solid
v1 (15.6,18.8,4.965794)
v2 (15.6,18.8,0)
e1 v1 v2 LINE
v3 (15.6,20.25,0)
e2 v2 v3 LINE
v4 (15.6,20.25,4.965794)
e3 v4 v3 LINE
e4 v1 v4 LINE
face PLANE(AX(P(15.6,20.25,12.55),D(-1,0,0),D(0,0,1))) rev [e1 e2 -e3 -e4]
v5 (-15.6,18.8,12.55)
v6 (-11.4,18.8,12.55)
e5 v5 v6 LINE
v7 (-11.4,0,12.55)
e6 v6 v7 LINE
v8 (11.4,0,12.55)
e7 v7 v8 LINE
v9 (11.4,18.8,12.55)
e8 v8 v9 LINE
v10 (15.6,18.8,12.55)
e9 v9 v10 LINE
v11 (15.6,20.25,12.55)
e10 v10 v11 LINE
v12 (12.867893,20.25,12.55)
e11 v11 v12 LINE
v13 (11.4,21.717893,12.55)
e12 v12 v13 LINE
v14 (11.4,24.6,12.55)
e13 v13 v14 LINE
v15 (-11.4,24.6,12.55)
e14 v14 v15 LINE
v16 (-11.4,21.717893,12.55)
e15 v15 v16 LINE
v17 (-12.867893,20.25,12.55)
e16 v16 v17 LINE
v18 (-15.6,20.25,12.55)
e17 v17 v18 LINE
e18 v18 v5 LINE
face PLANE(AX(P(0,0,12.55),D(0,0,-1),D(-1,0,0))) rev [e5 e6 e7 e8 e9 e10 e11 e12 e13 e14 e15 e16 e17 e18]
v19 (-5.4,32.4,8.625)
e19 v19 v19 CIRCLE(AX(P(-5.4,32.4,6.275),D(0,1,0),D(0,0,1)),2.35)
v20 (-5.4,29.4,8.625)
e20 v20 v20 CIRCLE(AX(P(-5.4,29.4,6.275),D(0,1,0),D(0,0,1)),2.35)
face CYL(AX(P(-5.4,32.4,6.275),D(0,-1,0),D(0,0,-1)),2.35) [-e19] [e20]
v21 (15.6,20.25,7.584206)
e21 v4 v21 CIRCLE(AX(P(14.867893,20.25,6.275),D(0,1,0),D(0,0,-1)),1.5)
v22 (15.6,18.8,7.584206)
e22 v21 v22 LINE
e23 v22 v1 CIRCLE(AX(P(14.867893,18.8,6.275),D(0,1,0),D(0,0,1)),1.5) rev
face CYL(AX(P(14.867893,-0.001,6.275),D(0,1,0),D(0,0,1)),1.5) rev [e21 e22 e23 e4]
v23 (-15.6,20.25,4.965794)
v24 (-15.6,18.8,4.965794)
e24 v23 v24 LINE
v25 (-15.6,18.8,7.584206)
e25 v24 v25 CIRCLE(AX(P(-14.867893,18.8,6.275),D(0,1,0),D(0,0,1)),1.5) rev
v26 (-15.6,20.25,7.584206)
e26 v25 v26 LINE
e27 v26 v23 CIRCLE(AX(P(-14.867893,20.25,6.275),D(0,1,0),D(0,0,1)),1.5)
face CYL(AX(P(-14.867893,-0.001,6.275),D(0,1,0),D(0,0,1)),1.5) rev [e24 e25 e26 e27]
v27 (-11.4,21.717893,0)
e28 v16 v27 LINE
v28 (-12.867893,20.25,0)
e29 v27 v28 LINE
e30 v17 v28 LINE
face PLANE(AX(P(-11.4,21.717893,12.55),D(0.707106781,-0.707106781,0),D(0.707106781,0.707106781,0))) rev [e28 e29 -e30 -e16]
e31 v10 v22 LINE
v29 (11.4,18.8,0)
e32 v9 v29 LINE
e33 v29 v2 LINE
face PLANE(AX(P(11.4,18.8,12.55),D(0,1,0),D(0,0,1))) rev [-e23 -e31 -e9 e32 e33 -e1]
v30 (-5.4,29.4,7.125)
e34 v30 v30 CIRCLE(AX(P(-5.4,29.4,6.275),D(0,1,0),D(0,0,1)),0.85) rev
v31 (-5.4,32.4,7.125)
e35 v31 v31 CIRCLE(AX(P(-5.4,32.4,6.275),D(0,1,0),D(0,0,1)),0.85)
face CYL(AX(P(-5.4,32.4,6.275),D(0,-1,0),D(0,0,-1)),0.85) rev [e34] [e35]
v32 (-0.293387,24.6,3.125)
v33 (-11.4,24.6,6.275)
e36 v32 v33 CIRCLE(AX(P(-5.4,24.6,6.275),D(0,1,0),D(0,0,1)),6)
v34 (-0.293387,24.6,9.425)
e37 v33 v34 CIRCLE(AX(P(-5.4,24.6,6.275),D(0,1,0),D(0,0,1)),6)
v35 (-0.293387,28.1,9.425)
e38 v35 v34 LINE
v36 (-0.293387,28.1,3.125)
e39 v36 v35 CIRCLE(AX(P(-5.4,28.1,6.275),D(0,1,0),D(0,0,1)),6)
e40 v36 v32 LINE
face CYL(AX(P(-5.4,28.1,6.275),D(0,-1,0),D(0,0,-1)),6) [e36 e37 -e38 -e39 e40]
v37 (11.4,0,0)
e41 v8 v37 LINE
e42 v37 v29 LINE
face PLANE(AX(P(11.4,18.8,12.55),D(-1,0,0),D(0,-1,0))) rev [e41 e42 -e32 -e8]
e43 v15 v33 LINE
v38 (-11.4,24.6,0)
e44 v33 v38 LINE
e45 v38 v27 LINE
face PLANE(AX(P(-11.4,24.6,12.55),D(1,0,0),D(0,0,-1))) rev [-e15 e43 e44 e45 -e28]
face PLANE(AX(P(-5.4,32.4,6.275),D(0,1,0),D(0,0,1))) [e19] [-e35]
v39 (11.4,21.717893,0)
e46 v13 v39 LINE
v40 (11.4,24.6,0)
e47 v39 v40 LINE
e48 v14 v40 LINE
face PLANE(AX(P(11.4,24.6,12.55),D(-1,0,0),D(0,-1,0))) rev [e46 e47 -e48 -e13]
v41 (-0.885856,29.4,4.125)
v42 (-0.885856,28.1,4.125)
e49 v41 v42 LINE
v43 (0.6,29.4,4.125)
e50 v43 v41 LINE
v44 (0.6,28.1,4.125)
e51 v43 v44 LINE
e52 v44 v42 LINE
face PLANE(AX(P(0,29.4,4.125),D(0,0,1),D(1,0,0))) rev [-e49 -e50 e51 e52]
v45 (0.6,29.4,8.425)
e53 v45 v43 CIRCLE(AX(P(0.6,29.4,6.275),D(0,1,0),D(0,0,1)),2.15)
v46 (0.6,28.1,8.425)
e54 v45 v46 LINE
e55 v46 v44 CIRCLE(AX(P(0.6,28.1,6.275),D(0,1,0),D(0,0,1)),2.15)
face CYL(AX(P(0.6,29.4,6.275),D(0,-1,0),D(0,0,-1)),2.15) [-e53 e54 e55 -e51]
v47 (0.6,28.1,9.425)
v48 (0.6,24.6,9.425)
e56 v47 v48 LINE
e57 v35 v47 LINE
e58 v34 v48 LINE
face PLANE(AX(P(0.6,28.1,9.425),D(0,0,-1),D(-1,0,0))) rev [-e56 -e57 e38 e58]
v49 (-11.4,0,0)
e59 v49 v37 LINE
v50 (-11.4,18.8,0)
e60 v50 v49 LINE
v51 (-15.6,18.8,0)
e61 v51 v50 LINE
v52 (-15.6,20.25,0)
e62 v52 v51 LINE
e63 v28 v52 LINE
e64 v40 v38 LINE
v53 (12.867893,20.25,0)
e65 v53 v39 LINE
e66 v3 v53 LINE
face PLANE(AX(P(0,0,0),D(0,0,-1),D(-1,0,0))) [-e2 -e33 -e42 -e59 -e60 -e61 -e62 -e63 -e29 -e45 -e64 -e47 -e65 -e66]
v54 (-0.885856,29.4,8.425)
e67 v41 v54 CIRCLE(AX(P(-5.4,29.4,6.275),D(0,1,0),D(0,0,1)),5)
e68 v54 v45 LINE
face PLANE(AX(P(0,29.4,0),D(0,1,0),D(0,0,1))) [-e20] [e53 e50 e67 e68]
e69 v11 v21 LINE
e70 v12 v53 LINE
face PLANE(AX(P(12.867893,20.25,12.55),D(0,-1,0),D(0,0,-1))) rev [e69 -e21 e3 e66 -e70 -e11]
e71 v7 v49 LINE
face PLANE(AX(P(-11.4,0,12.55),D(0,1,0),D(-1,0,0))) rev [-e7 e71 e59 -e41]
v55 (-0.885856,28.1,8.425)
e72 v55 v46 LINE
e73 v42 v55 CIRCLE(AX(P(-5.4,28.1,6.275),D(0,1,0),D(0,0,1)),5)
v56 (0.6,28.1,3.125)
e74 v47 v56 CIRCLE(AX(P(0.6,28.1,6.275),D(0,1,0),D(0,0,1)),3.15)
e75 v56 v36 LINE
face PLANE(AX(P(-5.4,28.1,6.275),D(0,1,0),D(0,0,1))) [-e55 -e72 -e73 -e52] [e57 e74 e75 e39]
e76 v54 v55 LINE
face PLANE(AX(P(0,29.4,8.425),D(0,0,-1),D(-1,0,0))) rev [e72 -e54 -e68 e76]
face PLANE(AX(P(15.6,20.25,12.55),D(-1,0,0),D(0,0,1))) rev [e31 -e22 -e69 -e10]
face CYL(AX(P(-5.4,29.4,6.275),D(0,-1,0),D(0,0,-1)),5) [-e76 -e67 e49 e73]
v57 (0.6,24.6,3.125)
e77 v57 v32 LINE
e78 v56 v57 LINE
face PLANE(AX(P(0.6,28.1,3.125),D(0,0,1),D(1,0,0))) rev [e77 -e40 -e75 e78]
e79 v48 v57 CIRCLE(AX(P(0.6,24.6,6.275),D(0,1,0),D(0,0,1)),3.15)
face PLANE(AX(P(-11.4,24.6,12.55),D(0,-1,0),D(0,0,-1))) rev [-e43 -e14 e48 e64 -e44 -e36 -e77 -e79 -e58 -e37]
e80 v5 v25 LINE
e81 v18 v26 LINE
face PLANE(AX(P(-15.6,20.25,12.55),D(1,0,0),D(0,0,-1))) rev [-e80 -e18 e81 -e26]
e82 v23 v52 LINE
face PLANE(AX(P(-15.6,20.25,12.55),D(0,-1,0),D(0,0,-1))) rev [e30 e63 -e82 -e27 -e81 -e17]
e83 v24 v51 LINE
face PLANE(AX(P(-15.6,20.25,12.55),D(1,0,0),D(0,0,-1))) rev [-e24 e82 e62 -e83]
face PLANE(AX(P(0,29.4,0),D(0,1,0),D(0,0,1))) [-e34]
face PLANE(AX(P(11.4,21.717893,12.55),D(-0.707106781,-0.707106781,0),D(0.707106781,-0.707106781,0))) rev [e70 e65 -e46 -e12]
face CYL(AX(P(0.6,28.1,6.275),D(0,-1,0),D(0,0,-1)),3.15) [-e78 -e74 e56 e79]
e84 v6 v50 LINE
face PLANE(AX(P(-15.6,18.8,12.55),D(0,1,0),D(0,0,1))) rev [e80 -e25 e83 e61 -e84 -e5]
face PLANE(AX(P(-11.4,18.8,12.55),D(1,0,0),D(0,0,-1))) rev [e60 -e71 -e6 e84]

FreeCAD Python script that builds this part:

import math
import FreeCAD as App
import Part
import Sketcher


def add_polygon(sketch, points):
    """Adds a closed chain of lines whose ends are joined by coincident constraints."""
    first, n = sketch.GeometryCount, len(points)
    for a, b in zip(points, points[1:] + points[:1]):
        sketch.addGeometry(Part.LineSegment(App.Vector(*a, 0), App.Vector(*b, 0)), False)
    for i in range(n):
        sketch.addConstraint(Sketcher.Constraint("Coincident", first + i, 2, first + (i + 1) % n, 1))

doc = App.newDocument("Part")
body = doc.addObject("PartDesign::Body", "Body")

# Sketch on XY plane
sketch1 = doc.addObject("Sketcher::SketchObject", "Sketch")
body.addObject(sketch1)
sketch1.AttachmentSupport = (doc.XY_Plane, [""])
sketch1.MapMode = "FlatFace"
add_polygon(sketch1, [(12.9, 20.2), (11.4, 21.7), (11.4, 24.6), (-11.4, 24.6), (-11.4, 21.7), (-12.9, 20.2), (-15.6, 20.2), (-15.6, 18.8), (-11.4, 18.8), (-11.4, 0), (11.4, 0), (11.4, 18.8), (15.6, 18.8), (15.6, 20.2)])  # lines 0-13
sketch1.addConstraint(Sketcher.Constraint("Vertical", 1))
sketch1.addConstraint(Sketcher.Constraint("Horizontal", 2))
sketch1.addConstraint(Sketcher.Constraint("Vertical", 3))
sketch1.addConstraint(Sketcher.Constraint("Horizontal", 5))
sketch1.addConstraint(Sketcher.Constraint("Vertical", 6))
sketch1.addConstraint(Sketcher.Constraint("Horizontal", 7))
sketch1.addConstraint(Sketcher.Constraint("Vertical", 8))
sketch1.addConstraint(Sketcher.Constraint("Horizontal", 9))
sketch1.addConstraint(Sketcher.Constraint("Vertical", 10))
sketch1.addConstraint(Sketcher.Constraint("Horizontal", 11))
sketch1.addConstraint(Sketcher.Constraint("Vertical", 12))
sketch1.addConstraint(Sketcher.Constraint("Horizontal", 13))
sketch1.addConstraint(Sketcher.Constraint("Symmetric", 8, 2, 9, 2, -1, 1))
sketch1.addConstraint(Sketcher.Constraint("Symmetric", 0, 2, 3, 2, -2))
sketch1.addConstraint(Sketcher.Constraint("Symmetric", 6, 2, 11, 2, -2))
sketch1.addConstraint(Sketcher.Constraint("Symmetric", 4, 2, 13, 2, -2))
sketch1.addConstraint(Sketcher.Constraint("Perpendicular", 0, 4))
sketch1.addConstraint(Sketcher.Constraint("Vertical", 3, 2, 7, 2))
sketch1.addConstraint(Sketcher.Constraint("DistanceX", 2, 2, 2, 1, 22.8))
sketch1.addConstraint(Sketcher.Constraint("DistanceX", 7, 1, 7, 2, 4.2))
sketch1.addConstraint(Sketcher.Constraint("DistanceY", 8, 2, 8, 1, 18.8))
sketch1.addConstraint(Sketcher.Constraint("DistanceY", 6, 2, 6, 1, 1.45))
sketch1.addConstraint(Sketcher.Constraint("DistanceY", -1, 1, 1, 2, 24.6))
sketch1.addConstraint(Sketcher.Constraint("DistanceX", 5, 2, 5, 1, 2.732107))
pad1 = doc.addObject("PartDesign::Pad", "Pad")
body.addObject(pad1)
pad1.Profile = sketch1
pad1.Length = 12.55

# Sketch on XZ plane
sketch2 = doc.addObject("Sketcher::SketchObject", "Sketch001")
body.addObject(sketch2)
sketch2.AttachmentSupport = (doc.XZ_Plane, [""])
sketch2.MapMode = "FlatFace"
sketch2.AttachmentOffset = App.Placement(App.Vector(0, 0, -24.6), App.Rotation())
sketch2.addGeometry(Part.LineSegment(App.Vector(0.6, 3.1, 0), App.Vector(-0.3, 3.1, 0)), False)
sketch2.addGeometry(Part.ArcOfCircle(Part.Circle(App.Vector(-5.4, 6.3, 0), App.Vector(0, 0, 1), 6), math.radians(32), math.radians(328)), False)
sketch2.addGeometry(Part.LineSegment(App.Vector(-0.3, 9.4, 0), App.Vector(0.6, 9.4, 0)), False)
sketch2.addGeometry(Part.ArcOfCircle(Part.Circle(App.Vector(0.6, 6.3, 0), App.Vector(0, 0, 1), 3.1), math.radians(-90), math.radians(90)), False)
sketch2.addConstraint(Sketcher.Constraint("Coincident", 0, 2, 1, 2))
sketch2.addConstraint(Sketcher.Constraint("Coincident", 1, 1, 2, 1))
sketch2.addConstraint(Sketcher.Constraint("Tangent", 2, 2, 3, 2))
sketch2.addConstraint(Sketcher.Constraint("Tangent", 3, 1, 0, 1))
sketch2.addConstraint(Sketcher.Constraint("Horizontal", 0))
sketch2.addConstraint(Sketcher.Constraint("Horizontal", 2))
sketch2.addConstraint(Sketcher.Constraint("Horizontal", 1, 3, 3, 3))
sketch2.addConstraint(Sketcher.Constraint("Radius", 1, 6.0))
sketch2.addConstraint(Sketcher.Constraint("Radius", 3, 3.15))
sketch2.addConstraint(Sketcher.Constraint("DistanceX", 1, 3, 3, 3, 6.0))
sketch2.addConstraint(Sketcher.Constraint("DistanceX", 1, 3, -1, 1, 5.4))
sketch2.addConstraint(Sketcher.Constraint("DistanceY", -1, 1, 1, 3, 6.275))
pad2 = doc.addObject("PartDesign::Pad", "Pad001")
body.addObject(pad2)
pad2.Profile = sketch2
pad2.Length = 3.5
pad2.Reversed = True

# Sketch on XZ plane
sketch3 = doc.addObject("Sketcher::SketchObject", "Sketch002")
body.addObject(sketch3)
sketch3.AttachmentSupport = (doc.XZ_Plane, [""])
sketch3.MapMode = "FlatFace"
sketch3.AttachmentOffset = App.Placement(App.Vector(0, 0, -28.1), App.Rotation())
sketch3.addGeometry(Part.LineSegment(App.Vector(-0.9, 8.4, 0), App.Vector(0.6, 8.4, 0)), False)
sketch3.addGeometry(Part.ArcOfCircle(Part.Circle(App.Vector(0.6, 6.3, 0), App.Vector(0, 0, 1), 2.1), math.radians(-90), math.radians(90)), False)
sketch3.addGeometry(Part.LineSegment(App.Vector(0.6, 4.1, 0), App.Vector(-0.9, 4.1, 0)), False)
sketch3.addGeometry(Part.ArcOfCircle(Part.Circle(App.Vector(-5.4, 6.3, 0), App.Vector(0, 0, 1), 5), math.radians(25), math.radians(335)), False)
sketch3.addConstraint(Sketcher.Constraint("Tangent", 0, 2, 1, 2))
sketch3.addConstraint(Sketcher.Constraint("Tangent", 1, 1, 2, 1))
sketch3.addConstraint(Sketcher.Constraint("Coincident", 2, 2, 3, 2))
sketch3.addConstraint(Sketcher.Constraint("Coincident", 3, 1, 0, 1))
sketch3.addConstraint(Sketcher.Constraint("Horizontal", 0))
sketch3.addConstraint(Sketcher.Constraint("Horizontal", 2))
sketch3.addConstraint(Sketcher.Constraint("Horizontal", 1, 3, 3, 3))
sketch3.addConstraint(Sketcher.Constraint("Radius", 3, 5.0))
sketch3.addConstraint(Sketcher.Constraint("Radius", 1, 2.15))
sketch3.addConstraint(Sketcher.Constraint("DistanceX", 3, 3, 1, 3, 6.0))
sketch3.addConstraint(Sketcher.Constraint("DistanceX", -1, 1, 1, 3, 0.6))
sketch3.addConstraint(Sketcher.Constraint("DistanceY", -1, 1, 1, 3, 6.275))
pad3 = doc.addObject("PartDesign::Pad", "Pad002")
body.addObject(pad3)
pad3.Profile = sketch3
pad3.Length = 1.3
pad3.Reversed = True

# Sketch on XZ plane
sketch4 = doc.addObject("Sketcher::SketchObject", "Sketch003")
body.addObject(sketch4)
sketch4.AttachmentSupport = (doc.XZ_Plane, [""])
sketch4.MapMode = "FlatFace"
sketch4.AttachmentOffset = App.Placement(App.Vector(0, 0, -29.4), App.Rotation())
sketch4.addGeometry(Part.Circle(App.Vector(-5.4, 6.3, 0), App.Vector(0, 0, 1), 2.4), False)
sketch4.addGeometry(Part.Circle(App.Vector(-5.4, 6.3, 0), App.Vector(0, 0, 1), 0.8), False)
sketch4.addConstraint(Sketcher.Constraint("Coincident", 1, 3, 0, 3))
sketch4.addConstraint(Sketcher.Constraint("Diameter", 0, 4.7))
sketch4.addConstraint(Sketcher.Constraint("Diameter", 1, 1.7))
sketch4.addConstraint(Sketcher.Constraint("DistanceX", 0, 3, -1, 1, 5.4))
sketch4.addConstraint(Sketcher.Constraint("DistanceY", -1, 1, 0, 3, 6.275))
pad4 = doc.addObject("PartDesign::Pad", "Pad003")
body.addObject(pad4)
pad4.Profile = sketch4
pad4.Length = 3
pad4.Reversed = True

# Sketch on XZ plane
sketch5 = doc.addObject("Sketcher::SketchObject", "Sketch004")
body.addObject(sketch5)
sketch5.AttachmentSupport = (doc.XZ_Plane, [""])
sketch5.MapMode = "FlatFace"
sketch5.AttachmentOffset = App.Placement(App.Vector(0, 0, -20.25), App.Rotation())
sketch5.addGeometry(Part.Circle(App.Vector(-14.9, 6.3, 0), App.Vector(0, 0, 1), 1.5), False)
sketch5.addConstraint(Sketcher.Constraint("Diameter", 0, 3.0))
sketch5.addConstraint(Sketcher.Constraint("DistanceY", -1, 1, 0, 3, 6.275))
sketch5.addConstraint(Sketcher.Constraint("DistanceX", 0, 3, -1, 1, 14.867893))
pocket1 = doc.addObject("PartDesign::Pocket", "Pocket")
body.addObject(pocket1)
pocket1.Profile = sketch5
pocket1.Type = "UpToFirst"
pocket1.Reversed = True

# Sketch on XZ plane
sketch6 = doc.addObject("Sketcher::SketchObject", "Sketch005")
body.addObject(sketch6)
sketch6.AttachmentSupport = (doc.XZ_Plane, [""])
sketch6.MapMode = "FlatFace"
sketch6.AttachmentOffset = App.Placement(App.Vector(0, 0, -20.25), App.Rotation())
sketch6.addGeometry(Part.Circle(App.Vector(14.9, 6.3, 0), App.Vector(0, 0, 1), 1.5), False)
sketch6.addConstraint(Sketcher.Constraint("Diameter", 0, 3.0))
sketch6.addConstraint(Sketcher.Constraint("DistanceY", -1, 1, 0, 3, 6.275))
sketch6.addConstraint(Sketcher.Constraint("DistanceX", -1, 1, 0, 3, 14.867893))
pocket2 = doc.addObject("PartDesign::Pocket", "Pocket001")
body.addObject(pocket2)
pocket2.Profile = sketch6
pocket2.Type = "UpToFirst"
pocket2.Reversed = True

doc.recompute()
